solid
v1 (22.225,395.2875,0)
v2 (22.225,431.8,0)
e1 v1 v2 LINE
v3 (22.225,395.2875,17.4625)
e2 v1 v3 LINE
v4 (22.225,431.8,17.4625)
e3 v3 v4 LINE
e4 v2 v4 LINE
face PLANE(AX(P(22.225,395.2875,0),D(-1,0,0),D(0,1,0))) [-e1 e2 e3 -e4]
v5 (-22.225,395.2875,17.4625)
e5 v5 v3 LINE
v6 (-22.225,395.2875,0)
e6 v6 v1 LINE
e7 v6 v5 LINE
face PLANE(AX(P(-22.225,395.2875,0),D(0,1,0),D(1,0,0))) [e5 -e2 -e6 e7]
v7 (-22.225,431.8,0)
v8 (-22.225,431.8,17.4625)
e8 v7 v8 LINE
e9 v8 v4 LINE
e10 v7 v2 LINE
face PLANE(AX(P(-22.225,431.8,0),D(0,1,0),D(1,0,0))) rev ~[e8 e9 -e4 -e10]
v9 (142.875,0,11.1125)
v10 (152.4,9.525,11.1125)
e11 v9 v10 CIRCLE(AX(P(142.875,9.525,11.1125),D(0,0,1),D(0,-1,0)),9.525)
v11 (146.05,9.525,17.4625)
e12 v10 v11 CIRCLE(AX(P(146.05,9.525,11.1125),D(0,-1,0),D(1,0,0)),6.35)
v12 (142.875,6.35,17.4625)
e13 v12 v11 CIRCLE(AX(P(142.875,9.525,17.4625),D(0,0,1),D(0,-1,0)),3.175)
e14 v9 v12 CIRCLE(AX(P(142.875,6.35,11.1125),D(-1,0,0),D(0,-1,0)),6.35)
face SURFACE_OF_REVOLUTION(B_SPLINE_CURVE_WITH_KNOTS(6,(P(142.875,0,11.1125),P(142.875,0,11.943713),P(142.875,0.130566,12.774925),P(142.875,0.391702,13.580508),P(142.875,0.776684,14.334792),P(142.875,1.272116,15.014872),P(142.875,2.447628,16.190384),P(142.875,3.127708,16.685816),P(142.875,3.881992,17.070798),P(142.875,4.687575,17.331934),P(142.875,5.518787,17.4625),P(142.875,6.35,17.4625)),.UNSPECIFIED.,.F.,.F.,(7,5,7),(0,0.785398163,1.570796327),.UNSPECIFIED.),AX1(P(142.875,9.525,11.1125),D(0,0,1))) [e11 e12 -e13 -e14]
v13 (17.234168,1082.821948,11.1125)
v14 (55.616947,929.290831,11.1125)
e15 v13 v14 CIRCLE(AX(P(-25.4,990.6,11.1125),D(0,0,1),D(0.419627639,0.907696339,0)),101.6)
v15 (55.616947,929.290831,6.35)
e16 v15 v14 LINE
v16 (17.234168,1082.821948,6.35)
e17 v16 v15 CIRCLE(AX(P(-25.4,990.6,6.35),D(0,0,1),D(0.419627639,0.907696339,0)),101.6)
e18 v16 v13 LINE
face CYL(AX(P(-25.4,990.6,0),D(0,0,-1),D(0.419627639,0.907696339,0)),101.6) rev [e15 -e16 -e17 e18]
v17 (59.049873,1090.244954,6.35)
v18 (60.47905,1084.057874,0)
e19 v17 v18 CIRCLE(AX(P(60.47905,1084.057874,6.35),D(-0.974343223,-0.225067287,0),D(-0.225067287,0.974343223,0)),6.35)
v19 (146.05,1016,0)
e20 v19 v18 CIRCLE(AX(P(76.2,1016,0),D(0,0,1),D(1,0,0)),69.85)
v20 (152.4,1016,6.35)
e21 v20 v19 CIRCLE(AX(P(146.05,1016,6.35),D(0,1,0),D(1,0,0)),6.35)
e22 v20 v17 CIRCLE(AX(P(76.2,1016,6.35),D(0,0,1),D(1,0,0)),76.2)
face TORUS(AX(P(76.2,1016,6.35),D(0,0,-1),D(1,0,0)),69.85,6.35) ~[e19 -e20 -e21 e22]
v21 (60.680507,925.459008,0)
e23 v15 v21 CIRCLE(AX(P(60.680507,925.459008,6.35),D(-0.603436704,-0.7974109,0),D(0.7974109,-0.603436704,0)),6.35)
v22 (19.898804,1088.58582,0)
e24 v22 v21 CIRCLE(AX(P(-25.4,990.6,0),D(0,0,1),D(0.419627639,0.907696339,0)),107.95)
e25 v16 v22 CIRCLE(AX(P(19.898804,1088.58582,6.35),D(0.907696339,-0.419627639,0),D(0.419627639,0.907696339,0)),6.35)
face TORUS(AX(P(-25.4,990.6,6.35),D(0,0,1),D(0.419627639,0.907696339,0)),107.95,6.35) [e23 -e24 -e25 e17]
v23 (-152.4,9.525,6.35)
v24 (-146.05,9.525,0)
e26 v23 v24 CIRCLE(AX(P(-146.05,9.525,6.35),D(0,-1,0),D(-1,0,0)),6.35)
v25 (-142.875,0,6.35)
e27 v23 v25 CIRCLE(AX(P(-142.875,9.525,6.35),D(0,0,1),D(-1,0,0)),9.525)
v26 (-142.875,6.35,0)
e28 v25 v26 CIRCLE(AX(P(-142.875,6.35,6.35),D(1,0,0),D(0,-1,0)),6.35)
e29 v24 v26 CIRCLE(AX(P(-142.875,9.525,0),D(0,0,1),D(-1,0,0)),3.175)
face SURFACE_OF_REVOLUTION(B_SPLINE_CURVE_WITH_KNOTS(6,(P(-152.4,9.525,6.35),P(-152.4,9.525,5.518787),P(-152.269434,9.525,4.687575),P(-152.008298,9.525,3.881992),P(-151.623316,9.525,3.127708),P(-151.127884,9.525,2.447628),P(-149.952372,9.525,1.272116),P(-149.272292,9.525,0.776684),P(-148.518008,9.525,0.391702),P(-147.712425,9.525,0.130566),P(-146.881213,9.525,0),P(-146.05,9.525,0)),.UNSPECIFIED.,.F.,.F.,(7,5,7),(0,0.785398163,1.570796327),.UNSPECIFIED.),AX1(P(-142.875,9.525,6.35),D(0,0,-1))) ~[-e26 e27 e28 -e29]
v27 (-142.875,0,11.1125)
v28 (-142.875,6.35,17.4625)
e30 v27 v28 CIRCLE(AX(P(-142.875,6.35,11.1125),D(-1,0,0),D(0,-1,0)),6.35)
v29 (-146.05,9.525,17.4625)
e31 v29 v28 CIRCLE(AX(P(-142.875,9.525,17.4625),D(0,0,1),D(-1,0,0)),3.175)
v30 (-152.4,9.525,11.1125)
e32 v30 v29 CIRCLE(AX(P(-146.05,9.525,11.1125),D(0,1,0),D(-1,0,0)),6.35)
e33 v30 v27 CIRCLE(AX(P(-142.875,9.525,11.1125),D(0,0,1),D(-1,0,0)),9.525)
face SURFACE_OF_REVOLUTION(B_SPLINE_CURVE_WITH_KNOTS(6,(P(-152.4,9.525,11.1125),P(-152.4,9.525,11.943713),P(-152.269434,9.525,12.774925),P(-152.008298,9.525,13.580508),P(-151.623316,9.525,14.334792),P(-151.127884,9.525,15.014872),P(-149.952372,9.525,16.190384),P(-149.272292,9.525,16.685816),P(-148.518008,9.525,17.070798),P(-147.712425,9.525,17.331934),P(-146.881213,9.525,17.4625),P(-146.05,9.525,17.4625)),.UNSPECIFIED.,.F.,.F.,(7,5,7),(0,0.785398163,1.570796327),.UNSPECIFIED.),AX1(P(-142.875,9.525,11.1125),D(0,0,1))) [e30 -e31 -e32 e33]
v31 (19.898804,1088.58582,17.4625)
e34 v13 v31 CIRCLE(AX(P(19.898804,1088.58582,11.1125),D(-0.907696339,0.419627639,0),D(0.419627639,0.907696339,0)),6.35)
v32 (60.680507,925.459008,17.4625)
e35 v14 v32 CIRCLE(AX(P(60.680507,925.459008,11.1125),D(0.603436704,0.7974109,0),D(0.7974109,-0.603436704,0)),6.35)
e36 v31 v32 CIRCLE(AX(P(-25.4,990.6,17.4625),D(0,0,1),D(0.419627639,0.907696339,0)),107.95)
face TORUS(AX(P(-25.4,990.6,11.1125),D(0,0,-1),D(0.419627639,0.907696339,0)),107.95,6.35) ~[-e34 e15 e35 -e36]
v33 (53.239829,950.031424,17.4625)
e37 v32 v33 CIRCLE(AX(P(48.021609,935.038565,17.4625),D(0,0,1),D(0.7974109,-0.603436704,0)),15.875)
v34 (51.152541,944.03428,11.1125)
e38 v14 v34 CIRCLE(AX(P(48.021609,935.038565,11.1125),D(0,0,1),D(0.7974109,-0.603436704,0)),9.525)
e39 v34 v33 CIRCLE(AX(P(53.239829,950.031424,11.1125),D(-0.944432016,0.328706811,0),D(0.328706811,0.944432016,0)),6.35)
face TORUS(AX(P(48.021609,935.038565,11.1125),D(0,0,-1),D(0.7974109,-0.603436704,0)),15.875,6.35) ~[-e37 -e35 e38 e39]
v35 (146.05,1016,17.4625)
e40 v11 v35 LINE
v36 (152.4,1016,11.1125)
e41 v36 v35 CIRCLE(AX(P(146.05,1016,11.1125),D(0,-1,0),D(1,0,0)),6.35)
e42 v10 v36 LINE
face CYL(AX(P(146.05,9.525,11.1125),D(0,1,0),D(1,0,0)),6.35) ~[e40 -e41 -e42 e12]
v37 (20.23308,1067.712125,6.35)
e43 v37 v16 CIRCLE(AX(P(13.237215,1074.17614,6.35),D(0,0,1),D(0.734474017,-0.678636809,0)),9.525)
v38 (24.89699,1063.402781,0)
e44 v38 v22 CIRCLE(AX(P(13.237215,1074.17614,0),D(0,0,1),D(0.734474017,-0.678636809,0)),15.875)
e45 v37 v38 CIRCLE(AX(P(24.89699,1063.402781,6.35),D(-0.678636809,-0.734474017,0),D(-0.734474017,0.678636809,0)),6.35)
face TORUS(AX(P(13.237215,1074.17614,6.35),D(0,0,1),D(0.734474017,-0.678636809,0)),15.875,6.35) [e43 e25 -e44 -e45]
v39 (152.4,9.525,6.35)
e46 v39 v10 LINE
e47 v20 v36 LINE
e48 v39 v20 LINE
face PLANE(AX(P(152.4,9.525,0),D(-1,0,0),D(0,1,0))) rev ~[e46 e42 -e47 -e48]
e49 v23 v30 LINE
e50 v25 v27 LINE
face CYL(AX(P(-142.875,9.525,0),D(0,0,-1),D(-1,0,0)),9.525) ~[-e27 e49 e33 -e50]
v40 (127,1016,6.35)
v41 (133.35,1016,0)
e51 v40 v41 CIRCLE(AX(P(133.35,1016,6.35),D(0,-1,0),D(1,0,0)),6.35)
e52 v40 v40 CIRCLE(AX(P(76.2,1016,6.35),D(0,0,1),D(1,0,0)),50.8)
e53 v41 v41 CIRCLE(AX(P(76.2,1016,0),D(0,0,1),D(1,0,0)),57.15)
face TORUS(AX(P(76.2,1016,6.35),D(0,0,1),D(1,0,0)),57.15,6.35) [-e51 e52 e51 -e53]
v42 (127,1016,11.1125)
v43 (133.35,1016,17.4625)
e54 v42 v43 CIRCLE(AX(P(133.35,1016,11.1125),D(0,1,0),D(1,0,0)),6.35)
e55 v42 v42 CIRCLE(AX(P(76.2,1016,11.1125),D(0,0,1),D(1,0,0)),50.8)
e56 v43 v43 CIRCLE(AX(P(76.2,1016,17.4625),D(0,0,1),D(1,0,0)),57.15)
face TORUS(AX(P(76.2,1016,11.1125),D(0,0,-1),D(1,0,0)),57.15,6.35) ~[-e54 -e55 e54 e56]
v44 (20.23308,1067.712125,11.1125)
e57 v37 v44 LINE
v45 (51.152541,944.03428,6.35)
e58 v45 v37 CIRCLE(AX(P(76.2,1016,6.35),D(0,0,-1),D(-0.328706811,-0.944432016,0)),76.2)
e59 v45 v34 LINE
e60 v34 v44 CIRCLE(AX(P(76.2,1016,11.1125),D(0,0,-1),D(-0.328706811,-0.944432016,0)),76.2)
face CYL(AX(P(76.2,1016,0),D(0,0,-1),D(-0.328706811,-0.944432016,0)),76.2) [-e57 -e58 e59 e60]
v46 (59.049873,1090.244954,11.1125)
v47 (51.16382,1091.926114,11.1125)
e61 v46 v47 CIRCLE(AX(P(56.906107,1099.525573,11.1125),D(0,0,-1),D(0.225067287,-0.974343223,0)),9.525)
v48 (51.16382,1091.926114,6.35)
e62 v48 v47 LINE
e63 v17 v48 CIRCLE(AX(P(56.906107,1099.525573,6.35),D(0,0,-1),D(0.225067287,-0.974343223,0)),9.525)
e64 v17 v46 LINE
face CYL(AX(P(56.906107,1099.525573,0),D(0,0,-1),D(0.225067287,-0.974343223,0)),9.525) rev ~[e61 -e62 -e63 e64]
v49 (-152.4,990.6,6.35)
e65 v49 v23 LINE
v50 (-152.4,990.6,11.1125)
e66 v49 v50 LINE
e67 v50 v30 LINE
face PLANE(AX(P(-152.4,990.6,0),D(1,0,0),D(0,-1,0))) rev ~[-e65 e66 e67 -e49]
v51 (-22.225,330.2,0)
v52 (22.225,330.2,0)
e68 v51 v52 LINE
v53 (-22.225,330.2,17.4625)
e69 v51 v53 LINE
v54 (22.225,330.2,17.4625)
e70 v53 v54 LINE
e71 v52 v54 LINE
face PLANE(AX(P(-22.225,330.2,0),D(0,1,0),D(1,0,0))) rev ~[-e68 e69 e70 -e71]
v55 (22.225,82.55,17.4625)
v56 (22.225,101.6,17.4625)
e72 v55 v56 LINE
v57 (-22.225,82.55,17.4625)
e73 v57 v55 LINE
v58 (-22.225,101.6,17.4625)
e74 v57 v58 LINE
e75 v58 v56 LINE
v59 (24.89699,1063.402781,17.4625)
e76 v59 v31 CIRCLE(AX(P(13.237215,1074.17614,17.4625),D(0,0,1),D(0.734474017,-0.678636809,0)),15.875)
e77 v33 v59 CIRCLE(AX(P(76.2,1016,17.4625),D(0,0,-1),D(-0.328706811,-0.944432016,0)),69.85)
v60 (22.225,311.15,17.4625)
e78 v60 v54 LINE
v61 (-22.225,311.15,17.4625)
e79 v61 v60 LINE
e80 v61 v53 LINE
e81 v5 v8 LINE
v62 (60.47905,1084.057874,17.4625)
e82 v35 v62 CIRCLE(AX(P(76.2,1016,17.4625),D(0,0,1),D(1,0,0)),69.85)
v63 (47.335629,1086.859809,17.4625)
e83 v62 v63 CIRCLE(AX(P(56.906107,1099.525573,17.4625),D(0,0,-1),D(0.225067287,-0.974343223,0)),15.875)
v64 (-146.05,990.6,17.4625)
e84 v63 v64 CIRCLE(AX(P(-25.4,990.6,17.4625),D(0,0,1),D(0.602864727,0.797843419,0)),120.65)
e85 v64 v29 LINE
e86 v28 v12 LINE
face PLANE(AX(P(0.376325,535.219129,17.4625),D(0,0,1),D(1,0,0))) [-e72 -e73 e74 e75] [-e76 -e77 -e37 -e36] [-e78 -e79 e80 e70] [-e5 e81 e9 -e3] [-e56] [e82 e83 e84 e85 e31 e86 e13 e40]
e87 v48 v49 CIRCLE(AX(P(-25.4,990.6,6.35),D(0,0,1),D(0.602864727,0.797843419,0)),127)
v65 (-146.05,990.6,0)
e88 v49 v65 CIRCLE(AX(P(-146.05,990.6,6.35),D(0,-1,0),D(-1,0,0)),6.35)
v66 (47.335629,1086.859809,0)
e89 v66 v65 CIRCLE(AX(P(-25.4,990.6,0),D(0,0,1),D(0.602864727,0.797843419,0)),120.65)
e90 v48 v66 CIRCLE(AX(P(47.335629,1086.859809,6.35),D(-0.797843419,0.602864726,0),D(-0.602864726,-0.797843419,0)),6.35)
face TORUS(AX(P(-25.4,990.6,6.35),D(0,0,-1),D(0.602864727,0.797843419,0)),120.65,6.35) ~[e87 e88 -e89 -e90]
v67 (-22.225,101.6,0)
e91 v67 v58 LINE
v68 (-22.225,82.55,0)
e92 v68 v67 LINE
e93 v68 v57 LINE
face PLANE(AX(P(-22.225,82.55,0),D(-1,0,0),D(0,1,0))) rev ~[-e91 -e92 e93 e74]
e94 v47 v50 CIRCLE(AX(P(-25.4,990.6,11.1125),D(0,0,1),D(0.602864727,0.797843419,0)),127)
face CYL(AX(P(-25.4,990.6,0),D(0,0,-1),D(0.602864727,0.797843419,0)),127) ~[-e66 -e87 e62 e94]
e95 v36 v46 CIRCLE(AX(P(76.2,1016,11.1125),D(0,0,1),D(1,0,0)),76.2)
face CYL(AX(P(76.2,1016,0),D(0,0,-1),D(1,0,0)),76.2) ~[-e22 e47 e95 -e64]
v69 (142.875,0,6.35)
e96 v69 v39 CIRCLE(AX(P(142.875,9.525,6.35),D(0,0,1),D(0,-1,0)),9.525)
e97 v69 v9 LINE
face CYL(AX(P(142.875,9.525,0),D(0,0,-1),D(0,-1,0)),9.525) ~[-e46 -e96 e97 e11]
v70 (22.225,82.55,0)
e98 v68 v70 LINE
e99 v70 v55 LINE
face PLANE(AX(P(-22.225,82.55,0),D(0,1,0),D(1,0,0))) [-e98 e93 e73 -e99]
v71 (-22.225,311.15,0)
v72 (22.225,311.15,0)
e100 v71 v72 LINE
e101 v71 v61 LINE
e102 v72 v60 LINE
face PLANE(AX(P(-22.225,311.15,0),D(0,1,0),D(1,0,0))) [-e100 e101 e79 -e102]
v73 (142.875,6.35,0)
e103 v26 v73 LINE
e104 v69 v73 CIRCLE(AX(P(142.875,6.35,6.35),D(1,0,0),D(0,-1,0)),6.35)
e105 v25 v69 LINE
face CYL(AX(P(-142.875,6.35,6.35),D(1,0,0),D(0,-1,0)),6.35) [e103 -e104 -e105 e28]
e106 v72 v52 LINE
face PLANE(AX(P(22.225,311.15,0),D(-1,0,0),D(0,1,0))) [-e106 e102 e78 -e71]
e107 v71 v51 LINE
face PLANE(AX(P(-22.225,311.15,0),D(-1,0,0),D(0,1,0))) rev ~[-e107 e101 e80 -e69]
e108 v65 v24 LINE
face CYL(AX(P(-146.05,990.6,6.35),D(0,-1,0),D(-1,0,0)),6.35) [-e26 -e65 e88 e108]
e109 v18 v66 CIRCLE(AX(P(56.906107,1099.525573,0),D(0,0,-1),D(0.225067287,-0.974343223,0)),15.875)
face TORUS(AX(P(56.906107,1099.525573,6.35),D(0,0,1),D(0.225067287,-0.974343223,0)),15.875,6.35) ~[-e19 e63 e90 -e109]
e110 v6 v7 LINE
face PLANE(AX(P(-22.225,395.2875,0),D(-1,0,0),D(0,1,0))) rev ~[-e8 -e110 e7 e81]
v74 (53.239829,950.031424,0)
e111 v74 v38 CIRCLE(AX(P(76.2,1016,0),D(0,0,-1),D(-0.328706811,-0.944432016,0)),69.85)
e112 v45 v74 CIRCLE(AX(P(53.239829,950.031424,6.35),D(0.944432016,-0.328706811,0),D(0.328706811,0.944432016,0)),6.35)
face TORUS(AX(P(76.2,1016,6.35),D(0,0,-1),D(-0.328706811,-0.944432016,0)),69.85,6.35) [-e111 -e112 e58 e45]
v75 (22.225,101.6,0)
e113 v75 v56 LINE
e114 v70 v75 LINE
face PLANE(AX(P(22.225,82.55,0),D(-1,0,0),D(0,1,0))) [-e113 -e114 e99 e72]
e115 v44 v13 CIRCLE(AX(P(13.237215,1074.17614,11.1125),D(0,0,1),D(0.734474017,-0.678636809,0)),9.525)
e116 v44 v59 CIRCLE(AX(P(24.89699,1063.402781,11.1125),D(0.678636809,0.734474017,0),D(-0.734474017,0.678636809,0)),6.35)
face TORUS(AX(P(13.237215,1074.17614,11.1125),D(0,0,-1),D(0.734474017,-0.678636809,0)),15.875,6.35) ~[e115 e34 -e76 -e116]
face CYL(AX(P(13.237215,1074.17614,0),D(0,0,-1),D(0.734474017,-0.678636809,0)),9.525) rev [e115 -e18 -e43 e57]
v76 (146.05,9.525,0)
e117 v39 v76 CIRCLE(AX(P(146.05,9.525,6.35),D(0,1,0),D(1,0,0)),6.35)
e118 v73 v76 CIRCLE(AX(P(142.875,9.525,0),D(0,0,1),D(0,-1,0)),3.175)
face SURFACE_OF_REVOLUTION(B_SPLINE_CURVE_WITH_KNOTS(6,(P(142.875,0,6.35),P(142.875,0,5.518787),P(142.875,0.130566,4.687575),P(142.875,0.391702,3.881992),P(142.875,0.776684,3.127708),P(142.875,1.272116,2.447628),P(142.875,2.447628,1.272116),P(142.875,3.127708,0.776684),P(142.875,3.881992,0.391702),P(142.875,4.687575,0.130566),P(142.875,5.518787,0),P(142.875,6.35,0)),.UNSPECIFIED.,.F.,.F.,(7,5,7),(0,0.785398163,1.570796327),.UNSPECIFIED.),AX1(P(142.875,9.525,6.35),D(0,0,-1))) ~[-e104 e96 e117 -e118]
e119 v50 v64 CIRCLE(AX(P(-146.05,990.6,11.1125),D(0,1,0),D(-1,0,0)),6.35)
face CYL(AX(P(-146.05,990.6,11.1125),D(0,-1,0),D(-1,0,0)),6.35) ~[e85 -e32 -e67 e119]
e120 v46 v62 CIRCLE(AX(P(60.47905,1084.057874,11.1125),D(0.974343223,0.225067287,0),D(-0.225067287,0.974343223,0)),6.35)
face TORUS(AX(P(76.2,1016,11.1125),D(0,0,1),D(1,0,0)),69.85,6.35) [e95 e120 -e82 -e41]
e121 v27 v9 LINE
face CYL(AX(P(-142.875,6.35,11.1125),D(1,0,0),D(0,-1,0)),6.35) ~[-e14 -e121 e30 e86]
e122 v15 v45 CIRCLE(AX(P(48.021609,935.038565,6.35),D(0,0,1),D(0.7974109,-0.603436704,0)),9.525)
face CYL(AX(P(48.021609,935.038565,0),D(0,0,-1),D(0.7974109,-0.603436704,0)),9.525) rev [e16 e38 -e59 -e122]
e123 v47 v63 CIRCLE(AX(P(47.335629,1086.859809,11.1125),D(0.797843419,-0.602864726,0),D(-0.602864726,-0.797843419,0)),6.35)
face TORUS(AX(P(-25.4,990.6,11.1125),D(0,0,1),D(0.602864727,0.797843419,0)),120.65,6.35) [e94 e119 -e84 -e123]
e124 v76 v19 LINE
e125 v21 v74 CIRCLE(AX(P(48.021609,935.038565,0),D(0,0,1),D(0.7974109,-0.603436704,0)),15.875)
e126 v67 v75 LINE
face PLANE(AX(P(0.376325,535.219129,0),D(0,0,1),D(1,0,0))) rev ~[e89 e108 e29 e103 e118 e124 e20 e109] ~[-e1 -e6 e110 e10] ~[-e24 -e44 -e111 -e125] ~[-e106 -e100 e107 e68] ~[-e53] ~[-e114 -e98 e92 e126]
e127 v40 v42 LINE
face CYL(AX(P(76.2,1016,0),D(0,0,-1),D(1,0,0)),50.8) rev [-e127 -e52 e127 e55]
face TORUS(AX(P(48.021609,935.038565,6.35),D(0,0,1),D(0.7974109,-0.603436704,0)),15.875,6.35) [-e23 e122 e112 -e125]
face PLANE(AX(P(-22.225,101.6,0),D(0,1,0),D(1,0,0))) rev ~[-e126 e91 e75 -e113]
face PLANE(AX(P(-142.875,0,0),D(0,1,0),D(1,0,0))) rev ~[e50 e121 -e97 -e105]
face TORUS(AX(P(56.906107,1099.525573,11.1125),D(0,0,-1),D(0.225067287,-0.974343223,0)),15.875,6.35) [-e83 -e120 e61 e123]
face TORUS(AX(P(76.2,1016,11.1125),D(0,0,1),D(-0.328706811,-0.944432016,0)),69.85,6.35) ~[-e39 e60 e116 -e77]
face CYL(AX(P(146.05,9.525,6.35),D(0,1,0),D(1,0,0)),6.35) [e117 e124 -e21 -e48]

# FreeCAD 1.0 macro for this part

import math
import FreeCAD as App
import Part
import Sketcher

V = App.Vector
Q = App.Units.Quantity


def edges_at(feature, points):
    """Names of the edges that pass closest to the given points."""
    edges = feature.Shape.Edges
    near = lambda p: min(range(len(edges)), key=lambda i: edges[i].distToShape(Part.Vertex(*p))[0])
    return sorted({f"Edge{near(p) + 1}" for p in points})

doc = App.newDocument("Part")
body = doc.addObject("PartDesign::Body", "Body")

# Sketch on XY plane
sketch1 = body.newObject("Sketcher::SketchObject", "Sketch")
sketch1.AttachmentSupport = (doc.getObject("XY_Plane"), [""])
sketch1.MapMode = "FlatFace"
sketch1.addGeometry([
    Part.LineSegment(V(-143, 0, 0), V(143, 0, 0)),  # 0
    Part.ArcOfCircle(Part.Circle(V(143, 10, 0), V(0, 0, 1), 10), math.radians(-90), math.radians(0)),  # 1
    Part.LineSegment(V(152, 10, 0), V(152, 1016, 0)),  # 2
    Part.ArcOfCircle(Part.Circle(V(76, 1016, 0), V(0, 0, 1), 76), math.radians(0), math.radians(103)),  # 3
    Part.ArcOfCircle(Part.Circle(V(57, 1100, 0), V(0, 0, 1), 10), math.radians(-127), math.radians(-77)),  # 4
    Part.ArcOfCircle(Part.Circle(V(-25, 991, 0), V(0, 0, 1), 127), math.radians(53), math.radians(180)),  # 5
    Part.LineSegment(V(-152, 991, 0), V(-152, 10, 0)),  # 6
    Part.ArcOfCircle(Part.Circle(V(-143, 10, 0), V(0, 0, 1), 10), math.radians(180), math.radians(270)),  # 7
    Part.LineSegment(V(22, 83, 0), V(-22, 83, 0)),  # 8
    Part.LineSegment(V(-22, 83, 0), V(-22, 102, 0)),  # 9
    Part.LineSegment(V(-22, 102, 0), V(22, 102, 0)),  # 10
    Part.LineSegment(V(22, 102, 0), V(22, 83, 0)),  # 11
    Part.LineSegment(V(22, 311, 0), V(-22, 311, 0)),  # 12
    Part.LineSegment(V(-22, 311, 0), V(-22, 330, 0)),  # 13
    Part.LineSegment(V(-22, 330, 0), V(22, 330, 0)),  # 14
    Part.LineSegment(V(22, 330, 0), V(22, 311, 0)),  # 15
    Part.LineSegment(V(22, 395, 0), V(-22, 395, 0)),  # 16
    Part.LineSegment(V(-22, 395, 0), V(-22, 432, 0)),  # 17
    Part.LineSegment(V(-22, 432, 0), V(22, 432, 0)),  # 18
    Part.LineSegment(V(22, 432, 0), V(22, 395, 0)),  # 19
    Part.ArcOfCircle(Part.Circle(V(-25, 991, 0), V(0, 0, 1), 102), math.radians(65), math.radians(323)),  # 20
    Part.ArcOfCircle(Part.Circle(V(13, 1074, 0), V(0, 0, 1), 10), math.radians(-43), math.radians(65)),  # 21
    Part.ArcOfCircle(Part.Circle(V(76, 1016, 0), V(0, 0, 1), 76), math.radians(137), math.radians(251)),  # 22
    Part.ArcOfCircle(Part.Circle(V(48, 935, 0), V(0, 0, 1), 10), math.radians(-37), math.radians(71)),  # 23
    Part.Circle(V(76, 1016, 0), V(0, 0, 1), 51),  # 24
], False)
sketch1.addConstraint([
    Sketcher.Constraint("Tangent", 0, 2, 1, 1),
    Sketcher.Constraint("Tangent", 1, 2, 2, 1),
    Sketcher.Constraint("Tangent", 2, 2, 3, 1),
    Sketcher.Constraint("Tangent", 3, 2, 4, 2),
    Sketcher.Constraint("Tangent", 4, 1, 5, 1),
    Sketcher.Constraint("Tangent", 5, 2, 6, 1),
    Sketcher.Constraint("Tangent", 6, 2, 7, 1),
    Sketcher.Constraint("Tangent", 7, 2, 0, 1),
    Sketcher.Constraint("Coincident", 8, 2, 9, 1),
    Sketcher.Constraint("Coincident", 9, 2, 10, 1),
    Sketcher.Constraint("Coincident", 10, 2, 11, 1),
    Sketcher.Constraint("Coincident", 11, 2, 8, 1),
    Sketcher.Constraint("Coincident", 12, 2, 13, 1),
    Sketcher.Constraint("Coincident", 13, 2, 14, 1),
    Sketcher.Constraint("Coincident", 14, 2, 15, 1),
    Sketcher.Constraint("Coincident", 15, 2, 12, 1),
    Sketcher.Constraint("Coincident", 16, 2, 17, 1),
    Sketcher.Constraint("Coincident", 17, 2, 18, 1),
    Sketcher.Constraint("Coincident", 18, 2, 19, 1),
    Sketcher.Constraint("Coincident", 19, 2, 16, 1),
    Sketcher.Constraint("Tangent", 20, 1, 21, 2),
    Sketcher.Constraint("Tangent", 21, 1, 22, 1),
    Sketcher.Constraint("Tangent", 22, 2, 23, 2),
    Sketcher.Constraint("Tangent", 23, 1, 20, 2),
    Sketcher.Constraint("Horizontal", 0),
    Sketcher.Constraint("Vertical", 2),
    Sketcher.Constraint("Vertical", 6),
    Sketcher.Constraint("Horizontal", 8),
    Sketcher.Constraint("Vertical", 9),
    Sketcher.Constraint("Horizontal", 10),
    Sketcher.Constraint("Vertical", 11),
    Sketcher.Constraint("Horizontal", 12),
    Sketcher.Constraint("Vertical", 13),
    Sketcher.Constraint("Horizontal", 14),
    Sketcher.Constraint("Vertical", 15),
    Sketcher.Constraint("Horizontal", 16),
    Sketcher.Constraint("Vertical", 17),
    Sketcher.Constraint("Horizontal", 18),
    Sketcher.Constraint("Vertical", 19),
    Sketcher.Constraint("Coincident", 20, 3, 5, 3),
    Sketcher.Constraint("Coincident", 22, 3, 3, 3),
    Sketcher.Constraint("Coincident", 24, 3, 3, 3),
    Sketcher.Constraint("Equal", 1, 4),
    Sketcher.Constraint("Equal", 4, 7),
    Sketcher.Constraint("Equal", 7, 21),
    Sketcher.Constraint("Equal", 3, 22),
    Sketcher.Constraint("Equal", 21, 23),
    Sketcher.Constraint("Symmetric", 0, 2, 7, 2, -1, 1),
    Sketcher.Constraint("Vertical", 9, 2, 12, 2),
    Sketcher.Constraint("Vertical", 11, 2, 14, 2),
    Sketcher.Constraint("Vertical", 13, 2, 16, 2),
    Sketcher.Constraint("Vertical", 15, 2, 18, 2),
    Sketcher.Constraint("Equal", 11, 13),
    Sketcher.Constraint("Diameter", 24, Q("4 in")),
    Sketcher.Constraint("Radius", 3, Q("3 in")),
    Sketcher.Constraint("Radius", 5, Q("5 in")),
    Sketcher.Constraint("Radius", 20, Q("4 in")),
    Sketcher.Constraint("DistanceX", -1, 1, 3, 3, Q("3 in")),
    Sketcher.Constraint("DistanceY", -1, 1, 3, 3, Q("40 in")),
    Sketcher.Constraint("DistanceY", -1, 1, 5, 3, Q("39 in")),
    Sketcher.Constraint("DistanceY", -1, 1, 9, 2, Q("4 in")),
    Sketcher.Constraint("DistanceY", -1, 1, 13, 2, Q("13 in")),
    Sketcher.Constraint("DistanceY", -1, 1, 17, 2, Q("17 in")),
    Sketcher.Constraint("Radius", 1, Q("0.375 in")),
    Sketcher.Constraint("DistanceX", 8, 2, 8, 1, Q("1.75 in")),
    Sketcher.Constraint("DistanceY", 9, 1, 9, 2, Q("0.75 in")),
    Sketcher.Constraint("DistanceX", 8, 2, 1, 3, Q("6.5 in")),
    Sketcher.Constraint("DistanceY", 17, 1, 17, 2, Q("1.4375 in")),
])
pad1 = body.newObject("PartDesign::Pad", "Pad")
pad1.Profile = sketch1
pad1.Length = Q("0.6875 in")
doc.recompute()

fillet = body.newObject("PartDesign::Fillet", "Fillet")
fillet.Base = (pad1, edges_at(pad1, [
    (123.632, 1075.638, 17.462),
    (152.4, 512.763, 0),
    (149.61, 2.79, 0),
    (54.92, 1090.21, 17.462),
    (-81.992, 1104.294, 17.462),
    (-152.4, 500.062, 17.462),
    (25.4, 1016, 0),
    (25.4, 1016, 17.462),
    (-149.61, 2.79, 17.462),
    (0, 0, 17.462),
    (57.138, 937.799, 0),
    (2.275, 997.519, 0),
    (22.58, 1076.03, 0),
    (-123.966, 965.958, 0),
    (57.138, 937.799, 17.462),
    (2.275, 997.519, 17.462),
    (22.58, 1076.03, 17.462),
    (-123.966, 965.958, 17.462),
    (149.61, 2.79, 17.462),
    (152.4, 512.763, 17.462),
    (0, 0, 0),
    (-149.61, 2.79, 0),
    (-152.4, 500.062, 0),
    (-81.992, 1104.294, 0),
    (54.92, 1090.21, 0),
    (123.632, 1075.638, 0),
]))
fillet.Radius = Q("0.25 in")

doc.recompute()
